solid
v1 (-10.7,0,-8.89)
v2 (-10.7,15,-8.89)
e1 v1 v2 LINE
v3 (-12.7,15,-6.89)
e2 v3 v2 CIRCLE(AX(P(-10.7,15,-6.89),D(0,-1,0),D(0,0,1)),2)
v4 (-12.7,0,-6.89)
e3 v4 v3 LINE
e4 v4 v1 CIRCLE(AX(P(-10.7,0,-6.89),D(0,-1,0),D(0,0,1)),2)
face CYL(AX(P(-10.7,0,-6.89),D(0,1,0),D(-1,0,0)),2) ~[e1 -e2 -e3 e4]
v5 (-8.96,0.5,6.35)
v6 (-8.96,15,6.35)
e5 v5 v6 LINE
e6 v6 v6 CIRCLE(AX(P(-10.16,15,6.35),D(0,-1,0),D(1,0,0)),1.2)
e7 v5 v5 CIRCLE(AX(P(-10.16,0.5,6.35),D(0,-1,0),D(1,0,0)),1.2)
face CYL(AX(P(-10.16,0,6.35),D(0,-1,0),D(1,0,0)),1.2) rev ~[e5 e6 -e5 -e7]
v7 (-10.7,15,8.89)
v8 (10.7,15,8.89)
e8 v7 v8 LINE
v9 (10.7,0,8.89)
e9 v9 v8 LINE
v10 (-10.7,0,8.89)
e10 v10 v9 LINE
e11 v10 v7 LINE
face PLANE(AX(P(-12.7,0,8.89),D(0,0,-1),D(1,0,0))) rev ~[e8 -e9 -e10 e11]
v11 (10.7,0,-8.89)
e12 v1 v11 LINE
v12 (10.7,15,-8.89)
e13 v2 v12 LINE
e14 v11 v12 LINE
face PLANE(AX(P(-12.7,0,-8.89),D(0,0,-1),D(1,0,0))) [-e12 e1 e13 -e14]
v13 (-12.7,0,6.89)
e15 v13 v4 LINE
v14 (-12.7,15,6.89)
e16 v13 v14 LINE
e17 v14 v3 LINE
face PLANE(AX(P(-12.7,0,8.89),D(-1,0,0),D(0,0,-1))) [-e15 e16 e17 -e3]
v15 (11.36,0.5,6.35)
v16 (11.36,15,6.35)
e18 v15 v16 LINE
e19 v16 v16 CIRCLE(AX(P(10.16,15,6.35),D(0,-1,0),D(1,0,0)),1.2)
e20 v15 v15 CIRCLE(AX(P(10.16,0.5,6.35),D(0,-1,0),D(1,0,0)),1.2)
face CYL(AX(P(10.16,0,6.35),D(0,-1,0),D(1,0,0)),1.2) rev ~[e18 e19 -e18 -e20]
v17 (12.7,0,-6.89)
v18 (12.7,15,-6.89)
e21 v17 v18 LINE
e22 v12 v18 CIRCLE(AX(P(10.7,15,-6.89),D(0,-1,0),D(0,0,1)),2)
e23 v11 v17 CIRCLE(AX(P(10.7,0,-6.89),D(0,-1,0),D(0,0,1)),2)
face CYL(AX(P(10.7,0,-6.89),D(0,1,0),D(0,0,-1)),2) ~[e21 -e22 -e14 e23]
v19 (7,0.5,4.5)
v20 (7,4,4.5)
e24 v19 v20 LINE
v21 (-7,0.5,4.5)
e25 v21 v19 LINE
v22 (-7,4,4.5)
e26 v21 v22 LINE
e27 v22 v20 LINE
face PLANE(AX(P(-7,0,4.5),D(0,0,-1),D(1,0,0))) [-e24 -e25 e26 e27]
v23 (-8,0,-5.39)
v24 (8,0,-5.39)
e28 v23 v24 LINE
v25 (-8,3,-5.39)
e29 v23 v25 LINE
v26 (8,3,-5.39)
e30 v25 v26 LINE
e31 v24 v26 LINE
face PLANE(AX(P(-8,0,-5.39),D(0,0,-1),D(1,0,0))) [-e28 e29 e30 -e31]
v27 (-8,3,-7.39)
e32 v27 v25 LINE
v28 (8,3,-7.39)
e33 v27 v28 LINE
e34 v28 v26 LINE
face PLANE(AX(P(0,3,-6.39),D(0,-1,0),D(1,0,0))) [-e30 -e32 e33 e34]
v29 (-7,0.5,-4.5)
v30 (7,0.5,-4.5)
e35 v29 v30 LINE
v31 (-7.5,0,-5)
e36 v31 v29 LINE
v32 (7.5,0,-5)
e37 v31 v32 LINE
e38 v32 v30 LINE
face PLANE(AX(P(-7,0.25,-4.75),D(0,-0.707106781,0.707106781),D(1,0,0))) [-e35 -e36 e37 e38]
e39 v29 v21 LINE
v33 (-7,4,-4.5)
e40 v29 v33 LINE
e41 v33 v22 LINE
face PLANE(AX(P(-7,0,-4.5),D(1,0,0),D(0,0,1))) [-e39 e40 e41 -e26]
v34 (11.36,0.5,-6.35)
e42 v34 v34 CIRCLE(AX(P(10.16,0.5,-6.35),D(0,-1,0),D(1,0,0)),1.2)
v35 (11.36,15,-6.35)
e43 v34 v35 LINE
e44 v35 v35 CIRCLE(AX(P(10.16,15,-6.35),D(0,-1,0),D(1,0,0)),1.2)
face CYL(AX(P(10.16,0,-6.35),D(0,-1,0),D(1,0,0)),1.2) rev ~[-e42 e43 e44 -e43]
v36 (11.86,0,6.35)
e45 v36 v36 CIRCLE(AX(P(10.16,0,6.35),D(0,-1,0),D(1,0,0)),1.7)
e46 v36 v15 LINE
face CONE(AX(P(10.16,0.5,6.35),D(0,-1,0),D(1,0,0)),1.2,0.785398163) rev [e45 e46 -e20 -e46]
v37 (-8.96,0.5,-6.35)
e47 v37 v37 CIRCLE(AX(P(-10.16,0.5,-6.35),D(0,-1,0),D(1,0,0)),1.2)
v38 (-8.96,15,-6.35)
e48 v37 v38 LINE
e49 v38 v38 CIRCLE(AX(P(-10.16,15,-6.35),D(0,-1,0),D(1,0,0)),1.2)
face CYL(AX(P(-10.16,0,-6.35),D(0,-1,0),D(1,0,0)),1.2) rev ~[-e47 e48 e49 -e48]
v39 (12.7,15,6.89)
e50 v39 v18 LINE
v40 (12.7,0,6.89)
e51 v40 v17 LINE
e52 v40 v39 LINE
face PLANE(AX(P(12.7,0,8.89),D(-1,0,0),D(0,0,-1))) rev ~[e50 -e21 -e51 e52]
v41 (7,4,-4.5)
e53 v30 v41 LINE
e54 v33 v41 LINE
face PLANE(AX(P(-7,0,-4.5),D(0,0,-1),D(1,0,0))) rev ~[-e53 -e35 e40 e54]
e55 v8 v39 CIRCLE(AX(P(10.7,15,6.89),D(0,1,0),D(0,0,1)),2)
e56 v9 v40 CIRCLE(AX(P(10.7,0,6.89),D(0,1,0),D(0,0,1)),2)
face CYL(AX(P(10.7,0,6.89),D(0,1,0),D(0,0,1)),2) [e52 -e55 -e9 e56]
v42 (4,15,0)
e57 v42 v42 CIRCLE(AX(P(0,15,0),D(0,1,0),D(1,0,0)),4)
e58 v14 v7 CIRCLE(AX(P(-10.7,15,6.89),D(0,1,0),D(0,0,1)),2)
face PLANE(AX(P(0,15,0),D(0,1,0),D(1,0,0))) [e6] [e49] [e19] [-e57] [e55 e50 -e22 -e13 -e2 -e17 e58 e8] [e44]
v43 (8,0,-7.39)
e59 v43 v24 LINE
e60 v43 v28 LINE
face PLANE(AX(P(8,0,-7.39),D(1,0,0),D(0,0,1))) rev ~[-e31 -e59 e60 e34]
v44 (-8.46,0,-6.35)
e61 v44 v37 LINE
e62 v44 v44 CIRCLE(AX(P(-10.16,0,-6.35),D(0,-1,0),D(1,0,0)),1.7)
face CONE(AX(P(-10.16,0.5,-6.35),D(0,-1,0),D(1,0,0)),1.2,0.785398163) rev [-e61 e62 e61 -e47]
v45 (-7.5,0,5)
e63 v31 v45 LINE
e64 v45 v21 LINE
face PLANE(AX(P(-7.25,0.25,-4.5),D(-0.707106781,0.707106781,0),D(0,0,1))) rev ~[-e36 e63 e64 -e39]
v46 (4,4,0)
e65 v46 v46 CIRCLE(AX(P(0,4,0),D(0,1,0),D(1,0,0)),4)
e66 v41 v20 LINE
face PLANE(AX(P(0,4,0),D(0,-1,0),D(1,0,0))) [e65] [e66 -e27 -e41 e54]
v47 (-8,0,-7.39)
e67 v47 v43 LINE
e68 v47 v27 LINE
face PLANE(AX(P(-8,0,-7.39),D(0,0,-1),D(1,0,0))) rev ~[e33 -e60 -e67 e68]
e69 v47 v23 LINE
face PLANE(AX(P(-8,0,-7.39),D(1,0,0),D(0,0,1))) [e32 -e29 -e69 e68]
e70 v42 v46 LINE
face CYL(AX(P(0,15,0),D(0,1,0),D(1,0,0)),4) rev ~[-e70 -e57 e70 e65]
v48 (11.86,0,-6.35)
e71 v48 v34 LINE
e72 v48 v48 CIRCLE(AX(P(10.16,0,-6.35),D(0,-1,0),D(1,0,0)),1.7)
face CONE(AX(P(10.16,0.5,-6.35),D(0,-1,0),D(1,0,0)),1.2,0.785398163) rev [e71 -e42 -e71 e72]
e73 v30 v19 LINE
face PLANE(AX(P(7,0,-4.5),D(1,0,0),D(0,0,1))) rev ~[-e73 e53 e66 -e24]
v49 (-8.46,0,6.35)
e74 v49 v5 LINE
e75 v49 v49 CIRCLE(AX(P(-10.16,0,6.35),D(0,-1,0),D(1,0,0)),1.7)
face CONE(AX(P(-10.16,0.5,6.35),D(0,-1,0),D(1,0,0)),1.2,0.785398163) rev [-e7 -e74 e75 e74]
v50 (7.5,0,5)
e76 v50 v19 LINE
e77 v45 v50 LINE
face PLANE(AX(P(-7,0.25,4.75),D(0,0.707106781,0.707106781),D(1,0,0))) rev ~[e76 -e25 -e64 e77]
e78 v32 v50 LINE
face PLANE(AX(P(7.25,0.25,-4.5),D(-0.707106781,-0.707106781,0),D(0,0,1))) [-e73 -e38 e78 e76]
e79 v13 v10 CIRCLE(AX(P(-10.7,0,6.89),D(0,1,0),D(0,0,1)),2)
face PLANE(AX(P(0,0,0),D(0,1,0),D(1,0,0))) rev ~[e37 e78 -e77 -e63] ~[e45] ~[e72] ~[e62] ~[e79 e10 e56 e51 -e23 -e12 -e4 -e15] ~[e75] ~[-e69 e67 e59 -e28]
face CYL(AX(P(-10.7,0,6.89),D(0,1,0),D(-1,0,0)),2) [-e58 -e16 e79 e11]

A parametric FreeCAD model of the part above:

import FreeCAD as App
import Part
import Sketcher


def edges_at(feature, points):
    """Names of the edges that pass closest to the given points."""
    edges = feature.Shape.Edges
    near = lambda p: min(range(len(edges)), key=lambda i: edges[i].distToShape(Part.Vertex(*p))[0])
    return sorted({f"Edge{near(p) + 1}" for p in points})

doc = App.newDocument("Part")
body = doc.addObject("PartDesign::Body", "Body")

# Sketch on XZ plane
sketch1 = body.newObject("Sketcher::SketchObject", "Sketch")
sketch1.AttachmentSupport = (doc.getObject("XZ_Plane"), [""])
sketch1.MapMode = "FlatFace"
sketch1.addGeometry([
    Part.LineSegment(App.Vector(-13, -9, 0), App.Vector(-13, 9, 0)),
    Part.LineSegment(App.Vector(-13, 9, 0), App.Vector(13, 9, 0)),
    Part.LineSegment(App.Vector(13, 9, 0), App.Vector(13, -9, 0)),
    Part.LineSegment(App.Vector(13, -9, 0), App.Vector(-13, -9, 0)),
], False)
sketch1.addConstraint([
    Sketcher.Constraint("Coincident", 0, 2, 1, 1),
    Sketcher.Constraint("Coincident", 1, 2, 2, 1),
    Sketcher.Constraint("Coincident", 2, 2, 3, 1),
    Sketcher.Constraint("Coincident", 3, 2, 0, 1),
    Sketcher.Constraint("Vertical", 0),
    Sketcher.Constraint("Horizontal", 1),
    Sketcher.Constraint("Vertical", 2),
    Sketcher.Constraint("Horizontal", 3),
    Sketcher.Constraint("Symmetric", 0, 2, 2, 2, -1, 1),
    Sketcher.Constraint("DistanceX", 1, 1, 1, 2, 25.4),
    Sketcher.Constraint("DistanceY", 0, 1, 0, 2, 17.78),
])
pad1 = body.newObject("PartDesign::Pad", "Pad")
pad1.Profile = sketch1
pad1.Length = 15
pad1.Reversed = True

# Sketch on XZ plane
sketch2 = body.newObject("Sketcher::SketchObject", "Sketch001")
sketch2.AttachmentSupport = (doc.getObject("XZ_Plane"), [""])
sketch2.MapMode = "FlatFace"
sketch2.addGeometry([
    Part.LineSegment(App.Vector(-7, 4, 0), App.Vector(-7, -4, 0)),
    Part.LineSegment(App.Vector(-7, -4, 0), App.Vector(7, -4, 0)),
    Part.LineSegment(App.Vector(7, -4, 0), App.Vector(7, 4, 0)),
    Part.LineSegment(App.Vector(7, 4, 0), App.Vector(-7, 4, 0)),
], False)
sketch2.addConstraint([
    Sketcher.Constraint("Coincident", 0, 2, 1, 1),
    Sketcher.Constraint("Coincident", 1, 2, 2, 1),
    Sketcher.Constraint("Coincident", 2, 2, 3, 1),
    Sketcher.Constraint("Coincident", 3, 2, 0, 1),
    Sketcher.Constraint("Vertical", 0),
    Sketcher.Constraint("Horizontal", 1),
    Sketcher.Constraint("Vertical", 2),
    Sketcher.Constraint("Horizontal", 3),
    Sketcher.Constraint("Symmetric", 0, 2, 2, 2, -1, 1),
    Sketcher.Constraint("DistanceX", 1, 1, 1, 2, 14.0),
    Sketcher.Constraint("DistanceY", 0, 2, 0, 1, 9.0),
])
pocket1 = body.newObject("PartDesign::Pocket", "Pocket")
pocket1.Profile = sketch2
pocket1.Length = 4

# Sketch on XZ plane
sketch3 = body.newObject("Sketcher::SketchObject", "Sketch002")
sketch3.AttachmentSupport = (doc.getObject("XZ_Plane"), [""])
sketch3.MapMode = "FlatFace"
sketch3.AttachmentOffset = App.Placement(App.Vector(0, 0, -15), App.Rotation())
sketch3.addGeometry(Part.Circle(App.Vector(0, 0, 0), App.Vector(0, 0, 1), 4), False)
sketch3.addConstraint([
    Sketcher.Constraint("Coincident", 0, 3, -1, 1),
    Sketcher.Constraint("Diameter", 0, 8.0),
])
pocket2 = body.newObject("PartDesign::Pocket", "Pocket001")
pocket2.Profile = sketch3
pocket2.Length = 25
pocket2.Reversed = True

# Sketch on XZ plane
sketch4 = body.newObject("Sketcher::SketchObject", "Sketch003")
sketch4.AttachmentSupport = (doc.getObject("XZ_Plane"), [""])
sketch4.MapMode = "FlatFace"
sketch4.addGeometry([
    Part.Circle(App.Vector(-10.2, -6.3, 0), App.Vector(0, 0, 1), 1.2),
    Part.Circle(App.Vector(-10.2, 6.3, 0), App.Vector(0, 0, 1), 1.2),
    Part.Circle(App.Vector(10.2, 6.3, 0), App.Vector(0, 0, 1), 1.2),
    Part.Circle(App.Vector(10.2, -6.3, 0), App.Vector(0, 0, 1), 1.2),
], False)
sketch4.addConstraint([
    Sketcher.Constraint("Equal", 0, 1),
    Sketcher.Constraint("Equal", 1, 2),
    Sketcher.Constraint("Equal", 2, 3),
    Sketcher.Constraint("Symmetric", 0, 3, 2, 3, -1, 1),
    Sketcher.Constraint("Symmetric", 1, 3, 3, 3, -1, 1),
    Sketcher.Constraint("Symmetric", 1, 3, 2, 3, -2),
    Sketcher.Constraint("Diameter", 0, 2.4),
    Sketcher.Constraint("DistanceY", 0, 3, 1, 3, 12.7),
    Sketcher.Constraint("DistanceX", 0, 3, -1, 1, 10.16),
])
pocket3 = body.newObject("PartDesign::Pocket", "Pocket002")
pocket3.Profile = sketch4
pocket3.Length = 25
doc.recompute()

fillet = body.newObject("PartDesign::Fillet", "Fillet")
fillet.Base = (pocket3, edges_at(pocket3, [
    (-12.7, 7.5, -8.89),
    (12.7, 7.5, -8.89),
    (12.7, 7.5, 8.89),
    (-12.7, 7.5, 8.89),
]))
fillet.Radius = 2
doc.recompute()

chamfer = body.newObject("PartDesign::Chamfer", "Chamfer")
chamfer.Base = (fillet, edges_at(fillet, [
    (7, 0, 0),
    (0, 0, 4.5),
    (-7, 0, 0),
    (0, 0, -4.5),
    (8.96, 0, -6.35),
    (8.96, 0, 6.35),
    (-11.36, 0, 6.35),
    (-11.36, 0, -6.35),
]))
chamfer.Size = 0.5

# Sketch on XZ plane
sketch5 = body.newObject("Sketcher::SketchObject", "Sketch004")
sketch5.AttachmentSupport = (doc.getObject("XZ_Plane"), [""])
sketch5.MapMode = "FlatFace"
sketch5.addGeometry([
    Part.LineSegment(App.Vector(-8, -5.4, 0), App.Vector(-8, -7.4, 0)),
    Part.LineSegment(App.Vector(-8, -7.4, 0), App.Vector(8, -7.4, 0)),
    Part.LineSegment(App.Vector(8, -7.4, 0), App.Vector(8, -5.4, 0)),
    Part.LineSegment(App.Vector(8, -5.4, 0), App.Vector(-8, -5.4, 0)),
], False)
sketch5.addConstraint([
    Sketcher.Constraint("Coincident", 0, 2, 1, 1),
    Sketcher.Constraint("Coincident", 1, 2, 2, 1),
    Sketcher.Constraint("Coincident", 2, 2, 3, 1),
    Sketcher.Constraint("Coincident", 3, 2, 0, 1),
    Sketcher.Constraint("Vertical", 0),
    Sketcher.Constraint("Horizontal", 1),
    Sketcher.Constraint("Vertical", 2),
    Sketcher.Constraint("Horizontal", 3),
    Sketcher.Constraint("DistanceX", 1, 1, 1, 2, 16.0),
    Sketcher.Constraint("DistanceY", 0, 2, 0, 1, 2.0),
    Sketcher.Constraint("DistanceX", 0, 2, -1, 1, 8.0),
    Sketcher.Constraint("DistanceY", 0, 2, -1, 1, 7.39),
])
pocket4 = body.newObject("PartDesign::Pocket", "Pocket003")
pocket4.Profile = sketch5
pocket4.Type = "TwoLengths"
pocket4.Length = 7
pocket4.Length2 = 3
pocket4.Reversed = True

doc.recompute()
